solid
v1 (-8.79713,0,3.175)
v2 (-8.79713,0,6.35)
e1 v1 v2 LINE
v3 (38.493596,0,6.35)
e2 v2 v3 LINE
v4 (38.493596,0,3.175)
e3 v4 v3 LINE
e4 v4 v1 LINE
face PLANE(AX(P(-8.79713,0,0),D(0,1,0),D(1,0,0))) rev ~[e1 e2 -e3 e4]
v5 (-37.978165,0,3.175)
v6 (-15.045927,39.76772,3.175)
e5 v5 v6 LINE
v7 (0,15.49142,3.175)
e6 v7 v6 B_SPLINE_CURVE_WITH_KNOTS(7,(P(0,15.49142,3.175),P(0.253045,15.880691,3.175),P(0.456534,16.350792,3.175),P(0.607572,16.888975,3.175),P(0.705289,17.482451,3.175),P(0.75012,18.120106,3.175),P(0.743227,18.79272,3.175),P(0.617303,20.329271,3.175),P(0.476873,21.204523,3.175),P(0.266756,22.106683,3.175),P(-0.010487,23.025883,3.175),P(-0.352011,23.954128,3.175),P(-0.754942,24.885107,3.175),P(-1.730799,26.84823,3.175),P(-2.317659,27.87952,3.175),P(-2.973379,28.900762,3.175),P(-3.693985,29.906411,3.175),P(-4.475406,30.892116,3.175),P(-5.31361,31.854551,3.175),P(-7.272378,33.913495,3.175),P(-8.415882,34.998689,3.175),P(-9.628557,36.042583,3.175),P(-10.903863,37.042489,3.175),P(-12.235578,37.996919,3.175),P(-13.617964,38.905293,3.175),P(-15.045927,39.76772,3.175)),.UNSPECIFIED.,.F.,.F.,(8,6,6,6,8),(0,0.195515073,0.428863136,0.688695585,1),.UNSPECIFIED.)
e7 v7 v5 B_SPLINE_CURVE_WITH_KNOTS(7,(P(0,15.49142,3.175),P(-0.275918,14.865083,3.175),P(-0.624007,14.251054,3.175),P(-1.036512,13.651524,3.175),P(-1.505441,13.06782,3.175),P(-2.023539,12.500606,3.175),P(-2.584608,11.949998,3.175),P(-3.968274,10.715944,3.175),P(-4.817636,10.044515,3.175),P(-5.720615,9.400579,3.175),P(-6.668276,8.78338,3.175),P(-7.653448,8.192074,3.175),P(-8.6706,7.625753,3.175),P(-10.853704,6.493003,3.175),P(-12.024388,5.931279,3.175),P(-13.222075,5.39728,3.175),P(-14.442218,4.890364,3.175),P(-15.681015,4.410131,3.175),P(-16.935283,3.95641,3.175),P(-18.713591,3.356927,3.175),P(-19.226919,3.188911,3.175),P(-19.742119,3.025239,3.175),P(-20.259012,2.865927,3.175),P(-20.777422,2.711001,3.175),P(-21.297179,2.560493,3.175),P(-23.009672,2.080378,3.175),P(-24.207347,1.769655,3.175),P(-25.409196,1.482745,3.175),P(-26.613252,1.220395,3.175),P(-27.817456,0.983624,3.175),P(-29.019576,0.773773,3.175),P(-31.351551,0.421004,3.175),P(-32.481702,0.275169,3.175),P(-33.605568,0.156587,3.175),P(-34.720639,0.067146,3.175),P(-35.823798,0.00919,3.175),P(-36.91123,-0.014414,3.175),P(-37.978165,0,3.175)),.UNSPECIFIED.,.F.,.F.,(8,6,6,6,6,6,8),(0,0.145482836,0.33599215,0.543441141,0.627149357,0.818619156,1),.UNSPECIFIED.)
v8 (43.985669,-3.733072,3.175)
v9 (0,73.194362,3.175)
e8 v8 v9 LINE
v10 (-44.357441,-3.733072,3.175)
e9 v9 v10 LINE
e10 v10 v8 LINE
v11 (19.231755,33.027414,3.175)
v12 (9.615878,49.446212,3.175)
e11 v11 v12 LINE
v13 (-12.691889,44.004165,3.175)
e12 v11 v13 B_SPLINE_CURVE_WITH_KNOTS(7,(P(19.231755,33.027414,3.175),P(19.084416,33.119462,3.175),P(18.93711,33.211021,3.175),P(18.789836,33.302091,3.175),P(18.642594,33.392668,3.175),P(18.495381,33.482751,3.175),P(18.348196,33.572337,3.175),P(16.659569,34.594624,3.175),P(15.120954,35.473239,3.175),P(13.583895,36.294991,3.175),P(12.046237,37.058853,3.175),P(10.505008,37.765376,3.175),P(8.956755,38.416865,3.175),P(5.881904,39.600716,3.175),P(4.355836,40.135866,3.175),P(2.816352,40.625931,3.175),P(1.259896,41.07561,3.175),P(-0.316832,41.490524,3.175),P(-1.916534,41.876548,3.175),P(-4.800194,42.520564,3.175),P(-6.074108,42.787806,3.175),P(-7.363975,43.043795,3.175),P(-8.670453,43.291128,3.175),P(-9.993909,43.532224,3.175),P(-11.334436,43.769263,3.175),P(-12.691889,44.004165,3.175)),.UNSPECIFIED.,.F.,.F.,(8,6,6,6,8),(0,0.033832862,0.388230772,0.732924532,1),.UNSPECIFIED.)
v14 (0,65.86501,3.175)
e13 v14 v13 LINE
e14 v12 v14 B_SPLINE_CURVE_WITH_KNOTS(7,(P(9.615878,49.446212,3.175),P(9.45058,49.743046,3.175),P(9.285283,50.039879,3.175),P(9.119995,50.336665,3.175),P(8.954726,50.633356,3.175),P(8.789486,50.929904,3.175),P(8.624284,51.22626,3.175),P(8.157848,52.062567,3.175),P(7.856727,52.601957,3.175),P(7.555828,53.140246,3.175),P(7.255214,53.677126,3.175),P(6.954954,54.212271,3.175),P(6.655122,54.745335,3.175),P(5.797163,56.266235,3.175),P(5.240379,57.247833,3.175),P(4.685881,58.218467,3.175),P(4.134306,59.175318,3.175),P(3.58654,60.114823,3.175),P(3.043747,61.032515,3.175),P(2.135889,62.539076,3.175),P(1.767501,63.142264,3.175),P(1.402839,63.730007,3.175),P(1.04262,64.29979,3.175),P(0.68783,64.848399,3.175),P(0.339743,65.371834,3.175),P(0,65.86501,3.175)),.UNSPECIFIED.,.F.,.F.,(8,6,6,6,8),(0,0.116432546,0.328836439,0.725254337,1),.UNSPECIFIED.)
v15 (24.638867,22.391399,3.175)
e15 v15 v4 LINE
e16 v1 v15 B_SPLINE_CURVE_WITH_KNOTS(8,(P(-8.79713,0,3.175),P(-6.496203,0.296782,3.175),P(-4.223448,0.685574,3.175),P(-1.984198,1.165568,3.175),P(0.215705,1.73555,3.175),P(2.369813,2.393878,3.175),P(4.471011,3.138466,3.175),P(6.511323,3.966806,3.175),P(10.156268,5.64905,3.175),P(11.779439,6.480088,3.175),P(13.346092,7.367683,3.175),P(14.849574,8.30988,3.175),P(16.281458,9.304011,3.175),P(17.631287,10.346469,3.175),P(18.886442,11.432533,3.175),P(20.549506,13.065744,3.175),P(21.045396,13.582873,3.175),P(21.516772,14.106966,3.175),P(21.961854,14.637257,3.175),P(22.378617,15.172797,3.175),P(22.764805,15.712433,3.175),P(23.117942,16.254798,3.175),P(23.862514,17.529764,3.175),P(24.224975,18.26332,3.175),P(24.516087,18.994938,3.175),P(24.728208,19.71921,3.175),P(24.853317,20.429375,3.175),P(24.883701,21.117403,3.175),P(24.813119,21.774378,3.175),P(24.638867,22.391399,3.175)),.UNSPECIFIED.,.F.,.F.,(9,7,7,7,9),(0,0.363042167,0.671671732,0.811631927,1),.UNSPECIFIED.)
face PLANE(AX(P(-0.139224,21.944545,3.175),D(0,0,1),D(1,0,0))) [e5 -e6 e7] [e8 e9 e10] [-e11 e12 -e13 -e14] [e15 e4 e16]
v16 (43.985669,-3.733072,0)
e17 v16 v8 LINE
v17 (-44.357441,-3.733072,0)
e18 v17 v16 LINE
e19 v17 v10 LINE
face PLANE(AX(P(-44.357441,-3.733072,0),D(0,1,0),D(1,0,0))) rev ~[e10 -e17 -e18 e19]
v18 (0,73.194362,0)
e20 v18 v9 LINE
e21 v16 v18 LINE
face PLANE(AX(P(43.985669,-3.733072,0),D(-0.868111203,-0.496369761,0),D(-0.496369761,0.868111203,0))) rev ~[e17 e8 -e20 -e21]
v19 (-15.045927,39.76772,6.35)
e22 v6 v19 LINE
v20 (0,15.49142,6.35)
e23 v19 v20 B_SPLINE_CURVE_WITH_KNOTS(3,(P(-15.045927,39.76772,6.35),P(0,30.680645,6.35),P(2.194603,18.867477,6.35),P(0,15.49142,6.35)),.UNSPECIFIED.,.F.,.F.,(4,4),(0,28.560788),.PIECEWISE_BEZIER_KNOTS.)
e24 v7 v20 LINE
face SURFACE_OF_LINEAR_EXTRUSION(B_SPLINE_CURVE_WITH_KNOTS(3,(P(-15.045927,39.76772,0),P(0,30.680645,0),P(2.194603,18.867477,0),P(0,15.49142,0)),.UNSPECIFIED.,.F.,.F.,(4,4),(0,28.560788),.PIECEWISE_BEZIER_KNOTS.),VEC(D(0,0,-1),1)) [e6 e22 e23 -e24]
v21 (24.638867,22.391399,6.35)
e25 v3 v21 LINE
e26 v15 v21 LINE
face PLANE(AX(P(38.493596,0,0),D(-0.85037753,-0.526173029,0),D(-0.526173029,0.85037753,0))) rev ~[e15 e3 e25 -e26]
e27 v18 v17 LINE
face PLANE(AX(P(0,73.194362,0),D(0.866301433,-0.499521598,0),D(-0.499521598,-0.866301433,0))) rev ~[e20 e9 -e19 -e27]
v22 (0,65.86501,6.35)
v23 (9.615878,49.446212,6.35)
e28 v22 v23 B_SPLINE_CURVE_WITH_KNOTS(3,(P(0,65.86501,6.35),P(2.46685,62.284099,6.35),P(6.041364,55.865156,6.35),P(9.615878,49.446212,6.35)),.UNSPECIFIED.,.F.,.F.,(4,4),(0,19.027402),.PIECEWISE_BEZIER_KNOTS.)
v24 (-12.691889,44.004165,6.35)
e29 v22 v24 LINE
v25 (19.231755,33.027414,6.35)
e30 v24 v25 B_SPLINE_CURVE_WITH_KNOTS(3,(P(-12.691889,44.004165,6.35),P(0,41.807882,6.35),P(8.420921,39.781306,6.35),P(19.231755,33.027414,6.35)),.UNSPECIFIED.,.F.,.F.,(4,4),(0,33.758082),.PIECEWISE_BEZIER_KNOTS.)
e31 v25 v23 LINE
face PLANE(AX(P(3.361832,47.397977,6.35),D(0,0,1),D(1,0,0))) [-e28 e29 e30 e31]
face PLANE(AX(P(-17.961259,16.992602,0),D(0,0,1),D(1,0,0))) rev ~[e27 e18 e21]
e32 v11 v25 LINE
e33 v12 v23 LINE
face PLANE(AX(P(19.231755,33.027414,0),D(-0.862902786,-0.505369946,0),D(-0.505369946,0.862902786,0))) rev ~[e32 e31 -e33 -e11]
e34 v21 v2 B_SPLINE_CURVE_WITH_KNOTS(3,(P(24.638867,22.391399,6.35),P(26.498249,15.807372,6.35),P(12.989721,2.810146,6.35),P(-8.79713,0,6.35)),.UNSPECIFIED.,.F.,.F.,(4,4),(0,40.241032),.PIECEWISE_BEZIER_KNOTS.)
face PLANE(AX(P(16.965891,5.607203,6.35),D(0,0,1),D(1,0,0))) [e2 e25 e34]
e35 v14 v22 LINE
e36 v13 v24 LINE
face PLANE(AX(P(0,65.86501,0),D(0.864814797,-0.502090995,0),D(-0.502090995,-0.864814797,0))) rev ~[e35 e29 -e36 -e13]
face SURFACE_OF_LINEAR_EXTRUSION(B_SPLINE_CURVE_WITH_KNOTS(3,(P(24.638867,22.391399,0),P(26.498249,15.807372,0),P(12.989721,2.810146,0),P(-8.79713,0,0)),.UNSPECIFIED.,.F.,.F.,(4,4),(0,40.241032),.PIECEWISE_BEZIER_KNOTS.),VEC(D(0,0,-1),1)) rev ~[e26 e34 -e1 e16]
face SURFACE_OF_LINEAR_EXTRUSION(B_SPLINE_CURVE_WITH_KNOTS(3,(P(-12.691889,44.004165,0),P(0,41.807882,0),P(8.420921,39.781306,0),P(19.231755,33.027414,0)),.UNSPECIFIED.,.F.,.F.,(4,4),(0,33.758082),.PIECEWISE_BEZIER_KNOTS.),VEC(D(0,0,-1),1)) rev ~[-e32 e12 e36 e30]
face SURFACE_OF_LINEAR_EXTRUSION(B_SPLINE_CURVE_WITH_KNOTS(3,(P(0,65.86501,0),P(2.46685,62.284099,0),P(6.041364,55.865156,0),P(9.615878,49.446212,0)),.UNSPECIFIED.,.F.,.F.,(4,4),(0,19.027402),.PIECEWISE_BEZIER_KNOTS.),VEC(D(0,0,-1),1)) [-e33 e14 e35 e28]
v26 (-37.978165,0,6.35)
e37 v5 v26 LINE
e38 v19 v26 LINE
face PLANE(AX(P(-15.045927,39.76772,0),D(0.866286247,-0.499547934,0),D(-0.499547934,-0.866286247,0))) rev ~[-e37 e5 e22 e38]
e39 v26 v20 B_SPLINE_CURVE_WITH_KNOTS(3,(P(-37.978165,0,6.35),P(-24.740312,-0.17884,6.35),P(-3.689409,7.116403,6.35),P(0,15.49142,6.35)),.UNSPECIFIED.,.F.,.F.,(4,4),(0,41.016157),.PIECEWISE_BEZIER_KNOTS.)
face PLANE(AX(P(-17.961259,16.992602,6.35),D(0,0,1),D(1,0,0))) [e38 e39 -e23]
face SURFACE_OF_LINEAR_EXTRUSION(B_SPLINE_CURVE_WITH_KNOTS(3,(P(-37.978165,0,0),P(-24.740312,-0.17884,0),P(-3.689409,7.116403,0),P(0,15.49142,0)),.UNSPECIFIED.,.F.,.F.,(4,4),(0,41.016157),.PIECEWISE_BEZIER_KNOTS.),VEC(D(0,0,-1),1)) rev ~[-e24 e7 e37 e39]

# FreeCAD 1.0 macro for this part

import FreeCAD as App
import Part
import Sketcher
from FreeCAD import Vector
Q = App.Units.Quantity

doc = App.newDocument("Part")
body = doc.addObject("PartDesign::Body", "Body")

# Sketch on XY plane
sketch1 = body.newObject("Sketcher::SketchObject", "Sketch")
sketch1.AttachmentSupport = (doc.getObject("XY_Plane"), [""])
sketch1.MapMode = "FlatFace"
sketch1.addGeometry([
    Part.LineSegment(Vector(0, 65.86501, 0), Vector(-12.691889, 44.004165, 0)),
    Part.BSplineCurve([Vector(-12.691889, 44.004165, 0), Vector(0, 41.807882, 0), Vector(8.420921, 39.781306, 0), Vector(19.231755, 33.027414, 0)], [4, 4], [0, 33.758082], False, 3, [1, 1, 1, 1], False),
    Part.LineSegment(Vector(19.231755, 33.027414, 0), Vector(9.615878, 49.446212, 0)),
    Part.BSplineCurve([Vector(0, 65.86501, 0), Vector(2.46685, 62.284099, 0), Vector(6.041364, 55.865156, 0), Vector(9.615878, 49.446212, 0)], [4, 4], [0, 19.027402], False, 3, [1, 1, 1, 1], False),
], False)
sketch1.addConstraint([
    Sketcher.Constraint("Block", 1),
    Sketcher.Constraint("Block", 3),
    Sketcher.Constraint("Coincident", 0, 2, 1, 1),
    Sketcher.Constraint("Coincident", 1, 2, 2, 1),
    Sketcher.Constraint("Coincident", 2, 2, 3, 2),
    Sketcher.Constraint("Coincident", 3, 1, 0, 1),
])
pad1 = body.newObject("PartDesign::Pad", "Pad")
pad1.Profile = sketch1
pad1.Length = Q("0.25 in")

# Sketch on XY plane
sketch2 = body.newObject("Sketcher::SketchObject", "Sketch001")
sketch2.AttachmentSupport = (doc.getObject("XY_Plane"), [""])
sketch2.MapMode = "FlatFace"
sketch2.addGeometry([
    Part.LineSegment(Vector(44, -4, 0), Vector(0, 73, 0)),
    Part.LineSegment(Vector(0, 73, 0), Vector(-44, -4, 0)),
    Part.LineSegment(Vector(-44, -4, 0), Vector(44, -4, 0)),
], False)
sketch2.addConstraint([
    Sketcher.Constraint("Coincident", 0, 2, 1, 1),
    Sketcher.Constraint("Coincident", 1, 2, 2, 1),
    Sketcher.Constraint("Coincident", 2, 2, 0, 1),
    Sketcher.Constraint("Horizontal", 2),
    Sketcher.Constraint("PointOnObject", 0, 2, -2),
    Sketcher.Constraint("DistanceX", 2, 1, 2, 2, 88.34311),
    Sketcher.Constraint("DistanceY", -1, 1, 0, 2, 73.194362),
    Sketcher.Constraint("DistanceX", 1, 2, -1, 1, 44.357441),
    Sketcher.Constraint("DistanceY", 1, 2, -1, 1, 3.733072),
])
pad2 = body.newObject("PartDesign::Pad", "Pad001")
pad2.Profile = sketch2
pad2.Length = Q("0.125 in")

# Sketch on XY plane
sketch3 = body.newObject("Sketcher::SketchObject", "Sketch002")
sketch3.AttachmentSupport = (doc.getObject("XY_Plane"), [""])
sketch3.MapMode = "FlatFace"
sketch3.addGeometry([
    Part.LineSegment(Vector(38.493596, 0, 0), Vector(24.638867, 22.391399, 0)),
    Part.BSplineCurve([Vector(24.638867, 22.391399, 0), Vector(26.498249, 15.807372, 0), Vector(12.989721, 2.810146, 0), Vector(-8.79713, 0, 0)], [4, 4], [0, 40.241032], False, 3, [1, 1, 1, 1], False),
    Part.LineSegment(Vector(-8.79713, 0, 0), Vector(38.493596, 0, 0)),
], False)
sketch3.addConstraint([
    Sketcher.Constraint("Block", 1),
    Sketcher.Constraint("Coincident", 0, 2, 1, 1),
    Sketcher.Constraint("Coincident", 1, 2, 2, 1),
    Sketcher.Constraint("Coincident", 2, 2, 0, 1),
    Sketcher.Constraint("Horizontal", 2),
    Sketcher.Constraint("DistanceX", 2, 1, 2, 2, 47.290726),
])
pad3 = body.newObject("PartDesign::Pad", "Pad002")
pad3.Profile = sketch3
pad3.Length = Q("0.25 in")

# Sketch on XY plane
sketch4 = body.newObject("Sketcher::SketchObject", "Sketch003")
sketch4.AttachmentSupport = (doc.getObject("XY_Plane"), [""])
sketch4.MapMode = "FlatFace"
sketch4.addGeometry([
    Part.LineSegment(Vector(-15.045927, 39.76772, 0), Vector(-37.978165, 0, 0)),
    Part.BSplineCurve([Vector(-37.978165, 0, 0), Vector(-24.740312, -0.17884, 0), Vector(-3.689409, 7.116403, 0), Vector(0, 15.49142, 0)], [4, 4], [0, 41.016157], False, 3, [1, 1, 1, 1], False),
    Part.BSplineCurve([Vector(-15.045927, 39.76772, 0), Vector(0, 30.680645, 0), Vector(2.194603, 18.867477, 0), Vector(0, 15.49142, 0)], [4, 4], [0, 28.560788], False, 3, [1, 1, 1, 1], False),
], False)
sketch4.addConstraint([
    Sketcher.Constraint("Block", 1),
    Sketcher.Constraint("Block", 2),
    Sketcher.Constraint("Coincident", 0, 2, 1, 1),
    Sketcher.Constraint("Coincident", 2, 1, 0, 1),
])
pad4 = body.newObject("PartDesign::Pad", "Pad003")
pad4.Profile = sketch4
pad4.Length = Q("0.25 in")

doc.recompute()
